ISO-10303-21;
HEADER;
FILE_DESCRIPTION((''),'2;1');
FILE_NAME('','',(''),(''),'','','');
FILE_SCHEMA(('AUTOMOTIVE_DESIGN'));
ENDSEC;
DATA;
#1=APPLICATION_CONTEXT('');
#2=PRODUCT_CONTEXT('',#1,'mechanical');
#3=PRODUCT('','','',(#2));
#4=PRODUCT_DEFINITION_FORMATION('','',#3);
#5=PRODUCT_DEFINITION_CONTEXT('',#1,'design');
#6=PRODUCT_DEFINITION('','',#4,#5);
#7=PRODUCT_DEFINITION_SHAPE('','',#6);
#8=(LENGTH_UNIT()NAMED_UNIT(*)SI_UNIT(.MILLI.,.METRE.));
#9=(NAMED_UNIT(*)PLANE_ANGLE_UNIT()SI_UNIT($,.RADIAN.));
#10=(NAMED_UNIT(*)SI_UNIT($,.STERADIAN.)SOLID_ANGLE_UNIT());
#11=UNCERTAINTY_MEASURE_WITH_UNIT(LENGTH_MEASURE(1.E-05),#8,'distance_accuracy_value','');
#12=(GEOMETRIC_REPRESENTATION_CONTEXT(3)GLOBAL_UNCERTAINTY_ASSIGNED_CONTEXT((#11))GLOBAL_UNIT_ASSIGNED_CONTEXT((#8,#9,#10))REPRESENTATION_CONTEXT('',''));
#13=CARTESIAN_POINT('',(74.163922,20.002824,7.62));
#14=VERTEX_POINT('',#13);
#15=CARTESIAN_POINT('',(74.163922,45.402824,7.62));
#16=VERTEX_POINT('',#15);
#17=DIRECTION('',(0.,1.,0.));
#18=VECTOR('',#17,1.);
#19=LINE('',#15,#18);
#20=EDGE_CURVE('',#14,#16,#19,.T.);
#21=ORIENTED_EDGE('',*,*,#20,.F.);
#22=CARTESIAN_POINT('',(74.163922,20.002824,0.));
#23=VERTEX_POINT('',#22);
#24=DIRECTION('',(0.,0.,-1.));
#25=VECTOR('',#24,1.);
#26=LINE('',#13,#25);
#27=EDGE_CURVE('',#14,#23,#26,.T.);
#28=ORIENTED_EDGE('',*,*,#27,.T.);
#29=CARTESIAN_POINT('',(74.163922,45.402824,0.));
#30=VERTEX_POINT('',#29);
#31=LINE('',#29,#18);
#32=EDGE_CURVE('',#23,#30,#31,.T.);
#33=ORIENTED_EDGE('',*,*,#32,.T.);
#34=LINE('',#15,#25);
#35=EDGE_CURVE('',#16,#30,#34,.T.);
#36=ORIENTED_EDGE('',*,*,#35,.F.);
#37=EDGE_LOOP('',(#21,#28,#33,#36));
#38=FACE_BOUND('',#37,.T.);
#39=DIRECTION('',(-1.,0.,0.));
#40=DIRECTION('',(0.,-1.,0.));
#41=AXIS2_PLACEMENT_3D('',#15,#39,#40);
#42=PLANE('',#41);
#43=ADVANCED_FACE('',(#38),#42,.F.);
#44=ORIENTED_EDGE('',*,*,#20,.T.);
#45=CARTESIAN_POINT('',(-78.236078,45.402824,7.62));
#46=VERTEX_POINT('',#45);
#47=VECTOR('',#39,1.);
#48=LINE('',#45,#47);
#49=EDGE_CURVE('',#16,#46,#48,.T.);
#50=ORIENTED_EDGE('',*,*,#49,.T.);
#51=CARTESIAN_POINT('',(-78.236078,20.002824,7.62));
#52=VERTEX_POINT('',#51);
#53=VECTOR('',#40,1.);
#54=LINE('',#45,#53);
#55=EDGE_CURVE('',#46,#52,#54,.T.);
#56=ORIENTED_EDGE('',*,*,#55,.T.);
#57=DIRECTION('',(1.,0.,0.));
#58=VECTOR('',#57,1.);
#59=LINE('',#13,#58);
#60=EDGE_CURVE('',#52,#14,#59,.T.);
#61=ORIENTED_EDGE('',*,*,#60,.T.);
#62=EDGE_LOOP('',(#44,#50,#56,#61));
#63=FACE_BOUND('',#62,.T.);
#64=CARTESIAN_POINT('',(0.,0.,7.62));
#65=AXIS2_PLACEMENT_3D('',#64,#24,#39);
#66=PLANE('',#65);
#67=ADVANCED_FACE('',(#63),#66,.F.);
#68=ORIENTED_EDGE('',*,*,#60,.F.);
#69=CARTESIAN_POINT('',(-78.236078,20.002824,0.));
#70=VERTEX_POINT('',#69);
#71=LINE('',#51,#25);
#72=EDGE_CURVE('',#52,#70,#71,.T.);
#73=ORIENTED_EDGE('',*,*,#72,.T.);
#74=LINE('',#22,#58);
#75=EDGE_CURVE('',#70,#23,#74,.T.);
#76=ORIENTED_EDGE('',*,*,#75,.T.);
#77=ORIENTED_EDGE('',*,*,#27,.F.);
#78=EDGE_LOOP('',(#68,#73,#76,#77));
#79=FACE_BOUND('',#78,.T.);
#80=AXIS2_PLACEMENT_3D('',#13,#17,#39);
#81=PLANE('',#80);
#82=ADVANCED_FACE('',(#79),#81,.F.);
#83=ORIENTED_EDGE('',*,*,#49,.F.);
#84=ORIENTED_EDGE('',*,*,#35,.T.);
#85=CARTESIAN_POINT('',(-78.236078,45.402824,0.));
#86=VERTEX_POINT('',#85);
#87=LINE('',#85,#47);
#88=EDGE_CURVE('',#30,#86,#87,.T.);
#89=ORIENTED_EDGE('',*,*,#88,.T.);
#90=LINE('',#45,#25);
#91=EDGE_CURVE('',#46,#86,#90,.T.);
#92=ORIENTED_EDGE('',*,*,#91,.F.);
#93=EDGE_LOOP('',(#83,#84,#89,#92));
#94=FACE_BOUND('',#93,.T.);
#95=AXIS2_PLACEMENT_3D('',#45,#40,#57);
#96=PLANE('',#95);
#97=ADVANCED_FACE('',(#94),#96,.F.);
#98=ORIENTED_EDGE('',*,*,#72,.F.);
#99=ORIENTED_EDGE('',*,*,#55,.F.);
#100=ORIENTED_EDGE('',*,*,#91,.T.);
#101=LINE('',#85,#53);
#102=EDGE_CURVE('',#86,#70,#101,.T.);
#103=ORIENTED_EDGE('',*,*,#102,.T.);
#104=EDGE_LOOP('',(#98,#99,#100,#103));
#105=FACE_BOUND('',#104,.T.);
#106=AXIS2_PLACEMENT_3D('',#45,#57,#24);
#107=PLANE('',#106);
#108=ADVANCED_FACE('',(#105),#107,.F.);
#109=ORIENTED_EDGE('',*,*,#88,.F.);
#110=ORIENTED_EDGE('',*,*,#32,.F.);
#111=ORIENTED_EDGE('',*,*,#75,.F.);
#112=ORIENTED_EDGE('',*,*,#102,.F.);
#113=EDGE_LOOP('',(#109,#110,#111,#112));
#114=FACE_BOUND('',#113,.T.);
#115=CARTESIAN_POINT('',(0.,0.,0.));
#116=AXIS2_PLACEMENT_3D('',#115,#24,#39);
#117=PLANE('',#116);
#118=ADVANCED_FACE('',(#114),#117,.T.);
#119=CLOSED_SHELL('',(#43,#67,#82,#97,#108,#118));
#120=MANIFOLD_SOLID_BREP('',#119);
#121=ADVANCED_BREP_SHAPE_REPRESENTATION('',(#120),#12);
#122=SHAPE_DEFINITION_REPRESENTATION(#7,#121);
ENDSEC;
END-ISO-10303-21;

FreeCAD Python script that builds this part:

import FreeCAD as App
import Part
import Sketcher
from FreeCAD import Vector
Q = App.Units.Quantity


def add_polygon(sketch, points):
    """Adds a closed chain of lines whose ends are joined by coincident constraints."""
    first, n = sketch.GeometryCount, len(points)
    for a, b in zip(points, points[1:] + points[:1]):
        sketch.addGeometry(Part.LineSegment(App.Vector(*a, 0), App.Vector(*b, 0)), False)
    for i in range(n):
        sketch.addConstraint(Sketcher.Constraint("Coincident", first + i, 2, first + (i + 1) % n, 1))

doc = App.newDocument("Part")
body = doc.addObject("PartDesign::Body", "Body")

sketch1 = body.newObject("Sketcher::SketchObject", "Sketch")
sketch1.AttachmentSupport = (doc.getObject("XY_Plane"), [""])
sketch1.MapMode = "FlatFace"
add_polygon(sketch1, [(-78, 45), (-78, 20), (74, 20), (74, 45)])
sketch1.addConstraint(Sketcher.Constraint("Vertical", 0))
sketch1.addConstraint(Sketcher.Constraint("Horizontal", 1))
sketch1.addConstraint(Sketcher.Constraint("Vertical", 2))
sketch1.addConstraint(Sketcher.Constraint("Horizontal", 3))
sketch1.addConstraint(Sketcher.Constraint("DistanceX", 1, 1, 1, 2, Q("6 in")))
sketch1.addConstraint(Sketcher.Constraint("DistanceY", 0, 2, 0, 1, Q("1 in")))
sketch1.addConstraint(Sketcher.Constraint("DistanceX", 0, 2, -1, 1, 78.236078))
sketch1.addConstraint(Sketcher.Constraint("DistanceY", -1, 1, 0, 2, 20.002824))
pad1 = body.newObject("PartDesign::Pad", "Pad")
pad1.Profile = sketch1
pad1.Length = Q("0.3 in")

doc.recompute()
